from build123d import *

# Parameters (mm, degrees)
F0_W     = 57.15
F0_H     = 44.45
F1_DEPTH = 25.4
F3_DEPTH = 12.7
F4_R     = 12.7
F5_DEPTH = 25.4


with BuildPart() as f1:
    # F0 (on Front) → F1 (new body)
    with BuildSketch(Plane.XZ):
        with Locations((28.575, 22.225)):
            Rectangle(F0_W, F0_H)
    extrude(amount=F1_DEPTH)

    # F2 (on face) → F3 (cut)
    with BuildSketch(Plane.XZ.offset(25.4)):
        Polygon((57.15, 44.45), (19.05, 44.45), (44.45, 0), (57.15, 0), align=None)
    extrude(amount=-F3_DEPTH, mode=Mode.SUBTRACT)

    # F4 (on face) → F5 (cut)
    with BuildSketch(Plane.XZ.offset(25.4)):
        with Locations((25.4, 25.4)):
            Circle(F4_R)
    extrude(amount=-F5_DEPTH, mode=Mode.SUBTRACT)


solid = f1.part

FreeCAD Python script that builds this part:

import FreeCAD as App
import Part
import Sketcher
Q = App.Units.Quantity


def add_polygon(sketch, points):
    """Adds a closed chain of lines whose ends are joined by coincident constraints."""
    first, n = sketch.GeometryCount, len(points)
    for a, b in zip(points, points[1:] + points[:1]):
        sketch.addGeometry(Part.LineSegment(App.Vector(*a, 0), App.Vector(*b, 0)), False)
    for i in range(n):
        sketch.addConstraint(Sketcher.Constraint("Coincident", first + i, 2, first + (i + 1) % n, 1))

doc = App.newDocument("Part")
body = doc.addObject("PartDesign::Body", "Body")

sketch1 = body.newObject("Sketcher::SketchObject", "Sketch")
sketch1.AttachmentSupport = (doc.getObject("XZ_Plane"), [""])
sketch1.MapMode = "FlatFace"
add_polygon(sketch1, [(0, 44), (0, 0), (57, 0), (57, 44)])
sketch1.addConstraint([
    Sketcher.Constraint("Vertical", 0),
    Sketcher.Constraint("Horizontal", 1),
    Sketcher.Constraint("Vertical", 2),
    Sketcher.Constraint("Horizontal", 3),
    Sketcher.Constraint("Coincident", 0, 2, -1, 1),
    Sketcher.Constraint("DistanceX", 1, 1, 1, 2, Q("2.25 in")),
    Sketcher.Constraint("DistanceY", 0, 2, 0, 1, Q("1.75 in")),
])
pad1 = body.newObject("PartDesign::Pad", "Pad")
pad1.Profile = sketch1
pad1.Length = Q("1 in")

sketch2 = body.newObject("Sketcher::SketchObject", "Sketch001")
sketch2.AttachmentSupport = (doc.getObject("XZ_Plane"), [""])
sketch2.MapMode = "FlatFace"
sketch2.AttachmentOffset = App.Placement(App.Vector(0, 0, 1 * 25.4), App.Rotation())
add_polygon(sketch2, [(57, 44), (19, 44), (44, 0), (57, 0)])
sketch2.addConstraint([
    Sketcher.Constraint("Horizontal", 0),
    Sketcher.Constraint("Horizontal", 2),
    Sketcher.Constraint("Vertical", 3),
    Sketcher.Constraint("PointOnObject", 1, 2, -1),
    Sketcher.Constraint("DistanceX", 0, 2, 0, 1, Q("1.5 in")),
    Sketcher.Constraint("DistanceX", 2, 1, 2, 2, Q("0.5 in")),
    Sketcher.Constraint("DistanceY", 3, 1, 3, 2, Q("1.75 in")),
    Sketcher.Constraint("DistanceX", -1, 1, 0, 2, Q("0.75 in")),
])
pocket1 = body.newObject("PartDesign::Pocket", "Pocket")
pocket1.Profile = sketch2
pocket1.Length = Q("0.5 in")

sketch3 = body.newObject("Sketcher::SketchObject", "Sketch002")
sketch3.AttachmentSupport = (doc.getObject("XZ_Plane"), [""])
sketch3.MapMode = "FlatFace"
sketch3.AttachmentOffset = App.Placement(App.Vector(0, 0, 1 * 25.4), App.Rotation())
sketch3.addGeometry(Part.Circle(App.Vector(25, 25, 0), App.Vector(0, 0, 1), 13), False)
sketch3.addConstraint([
    Sketcher.Constraint("Diameter", 0, Q("1 in")),
    Sketcher.Constraint("DistanceX", -1, 1, 0, 3, Q("1 in")),
    Sketcher.Constraint("DistanceY", -1, 1, 0, 3, Q("1 in")),
])
pocket2 = body.newObject("PartDesign::Pocket", "Pocket001")
pocket2.Profile = sketch3
pocket2.Length = Q("1 in")

doc.recompute()
